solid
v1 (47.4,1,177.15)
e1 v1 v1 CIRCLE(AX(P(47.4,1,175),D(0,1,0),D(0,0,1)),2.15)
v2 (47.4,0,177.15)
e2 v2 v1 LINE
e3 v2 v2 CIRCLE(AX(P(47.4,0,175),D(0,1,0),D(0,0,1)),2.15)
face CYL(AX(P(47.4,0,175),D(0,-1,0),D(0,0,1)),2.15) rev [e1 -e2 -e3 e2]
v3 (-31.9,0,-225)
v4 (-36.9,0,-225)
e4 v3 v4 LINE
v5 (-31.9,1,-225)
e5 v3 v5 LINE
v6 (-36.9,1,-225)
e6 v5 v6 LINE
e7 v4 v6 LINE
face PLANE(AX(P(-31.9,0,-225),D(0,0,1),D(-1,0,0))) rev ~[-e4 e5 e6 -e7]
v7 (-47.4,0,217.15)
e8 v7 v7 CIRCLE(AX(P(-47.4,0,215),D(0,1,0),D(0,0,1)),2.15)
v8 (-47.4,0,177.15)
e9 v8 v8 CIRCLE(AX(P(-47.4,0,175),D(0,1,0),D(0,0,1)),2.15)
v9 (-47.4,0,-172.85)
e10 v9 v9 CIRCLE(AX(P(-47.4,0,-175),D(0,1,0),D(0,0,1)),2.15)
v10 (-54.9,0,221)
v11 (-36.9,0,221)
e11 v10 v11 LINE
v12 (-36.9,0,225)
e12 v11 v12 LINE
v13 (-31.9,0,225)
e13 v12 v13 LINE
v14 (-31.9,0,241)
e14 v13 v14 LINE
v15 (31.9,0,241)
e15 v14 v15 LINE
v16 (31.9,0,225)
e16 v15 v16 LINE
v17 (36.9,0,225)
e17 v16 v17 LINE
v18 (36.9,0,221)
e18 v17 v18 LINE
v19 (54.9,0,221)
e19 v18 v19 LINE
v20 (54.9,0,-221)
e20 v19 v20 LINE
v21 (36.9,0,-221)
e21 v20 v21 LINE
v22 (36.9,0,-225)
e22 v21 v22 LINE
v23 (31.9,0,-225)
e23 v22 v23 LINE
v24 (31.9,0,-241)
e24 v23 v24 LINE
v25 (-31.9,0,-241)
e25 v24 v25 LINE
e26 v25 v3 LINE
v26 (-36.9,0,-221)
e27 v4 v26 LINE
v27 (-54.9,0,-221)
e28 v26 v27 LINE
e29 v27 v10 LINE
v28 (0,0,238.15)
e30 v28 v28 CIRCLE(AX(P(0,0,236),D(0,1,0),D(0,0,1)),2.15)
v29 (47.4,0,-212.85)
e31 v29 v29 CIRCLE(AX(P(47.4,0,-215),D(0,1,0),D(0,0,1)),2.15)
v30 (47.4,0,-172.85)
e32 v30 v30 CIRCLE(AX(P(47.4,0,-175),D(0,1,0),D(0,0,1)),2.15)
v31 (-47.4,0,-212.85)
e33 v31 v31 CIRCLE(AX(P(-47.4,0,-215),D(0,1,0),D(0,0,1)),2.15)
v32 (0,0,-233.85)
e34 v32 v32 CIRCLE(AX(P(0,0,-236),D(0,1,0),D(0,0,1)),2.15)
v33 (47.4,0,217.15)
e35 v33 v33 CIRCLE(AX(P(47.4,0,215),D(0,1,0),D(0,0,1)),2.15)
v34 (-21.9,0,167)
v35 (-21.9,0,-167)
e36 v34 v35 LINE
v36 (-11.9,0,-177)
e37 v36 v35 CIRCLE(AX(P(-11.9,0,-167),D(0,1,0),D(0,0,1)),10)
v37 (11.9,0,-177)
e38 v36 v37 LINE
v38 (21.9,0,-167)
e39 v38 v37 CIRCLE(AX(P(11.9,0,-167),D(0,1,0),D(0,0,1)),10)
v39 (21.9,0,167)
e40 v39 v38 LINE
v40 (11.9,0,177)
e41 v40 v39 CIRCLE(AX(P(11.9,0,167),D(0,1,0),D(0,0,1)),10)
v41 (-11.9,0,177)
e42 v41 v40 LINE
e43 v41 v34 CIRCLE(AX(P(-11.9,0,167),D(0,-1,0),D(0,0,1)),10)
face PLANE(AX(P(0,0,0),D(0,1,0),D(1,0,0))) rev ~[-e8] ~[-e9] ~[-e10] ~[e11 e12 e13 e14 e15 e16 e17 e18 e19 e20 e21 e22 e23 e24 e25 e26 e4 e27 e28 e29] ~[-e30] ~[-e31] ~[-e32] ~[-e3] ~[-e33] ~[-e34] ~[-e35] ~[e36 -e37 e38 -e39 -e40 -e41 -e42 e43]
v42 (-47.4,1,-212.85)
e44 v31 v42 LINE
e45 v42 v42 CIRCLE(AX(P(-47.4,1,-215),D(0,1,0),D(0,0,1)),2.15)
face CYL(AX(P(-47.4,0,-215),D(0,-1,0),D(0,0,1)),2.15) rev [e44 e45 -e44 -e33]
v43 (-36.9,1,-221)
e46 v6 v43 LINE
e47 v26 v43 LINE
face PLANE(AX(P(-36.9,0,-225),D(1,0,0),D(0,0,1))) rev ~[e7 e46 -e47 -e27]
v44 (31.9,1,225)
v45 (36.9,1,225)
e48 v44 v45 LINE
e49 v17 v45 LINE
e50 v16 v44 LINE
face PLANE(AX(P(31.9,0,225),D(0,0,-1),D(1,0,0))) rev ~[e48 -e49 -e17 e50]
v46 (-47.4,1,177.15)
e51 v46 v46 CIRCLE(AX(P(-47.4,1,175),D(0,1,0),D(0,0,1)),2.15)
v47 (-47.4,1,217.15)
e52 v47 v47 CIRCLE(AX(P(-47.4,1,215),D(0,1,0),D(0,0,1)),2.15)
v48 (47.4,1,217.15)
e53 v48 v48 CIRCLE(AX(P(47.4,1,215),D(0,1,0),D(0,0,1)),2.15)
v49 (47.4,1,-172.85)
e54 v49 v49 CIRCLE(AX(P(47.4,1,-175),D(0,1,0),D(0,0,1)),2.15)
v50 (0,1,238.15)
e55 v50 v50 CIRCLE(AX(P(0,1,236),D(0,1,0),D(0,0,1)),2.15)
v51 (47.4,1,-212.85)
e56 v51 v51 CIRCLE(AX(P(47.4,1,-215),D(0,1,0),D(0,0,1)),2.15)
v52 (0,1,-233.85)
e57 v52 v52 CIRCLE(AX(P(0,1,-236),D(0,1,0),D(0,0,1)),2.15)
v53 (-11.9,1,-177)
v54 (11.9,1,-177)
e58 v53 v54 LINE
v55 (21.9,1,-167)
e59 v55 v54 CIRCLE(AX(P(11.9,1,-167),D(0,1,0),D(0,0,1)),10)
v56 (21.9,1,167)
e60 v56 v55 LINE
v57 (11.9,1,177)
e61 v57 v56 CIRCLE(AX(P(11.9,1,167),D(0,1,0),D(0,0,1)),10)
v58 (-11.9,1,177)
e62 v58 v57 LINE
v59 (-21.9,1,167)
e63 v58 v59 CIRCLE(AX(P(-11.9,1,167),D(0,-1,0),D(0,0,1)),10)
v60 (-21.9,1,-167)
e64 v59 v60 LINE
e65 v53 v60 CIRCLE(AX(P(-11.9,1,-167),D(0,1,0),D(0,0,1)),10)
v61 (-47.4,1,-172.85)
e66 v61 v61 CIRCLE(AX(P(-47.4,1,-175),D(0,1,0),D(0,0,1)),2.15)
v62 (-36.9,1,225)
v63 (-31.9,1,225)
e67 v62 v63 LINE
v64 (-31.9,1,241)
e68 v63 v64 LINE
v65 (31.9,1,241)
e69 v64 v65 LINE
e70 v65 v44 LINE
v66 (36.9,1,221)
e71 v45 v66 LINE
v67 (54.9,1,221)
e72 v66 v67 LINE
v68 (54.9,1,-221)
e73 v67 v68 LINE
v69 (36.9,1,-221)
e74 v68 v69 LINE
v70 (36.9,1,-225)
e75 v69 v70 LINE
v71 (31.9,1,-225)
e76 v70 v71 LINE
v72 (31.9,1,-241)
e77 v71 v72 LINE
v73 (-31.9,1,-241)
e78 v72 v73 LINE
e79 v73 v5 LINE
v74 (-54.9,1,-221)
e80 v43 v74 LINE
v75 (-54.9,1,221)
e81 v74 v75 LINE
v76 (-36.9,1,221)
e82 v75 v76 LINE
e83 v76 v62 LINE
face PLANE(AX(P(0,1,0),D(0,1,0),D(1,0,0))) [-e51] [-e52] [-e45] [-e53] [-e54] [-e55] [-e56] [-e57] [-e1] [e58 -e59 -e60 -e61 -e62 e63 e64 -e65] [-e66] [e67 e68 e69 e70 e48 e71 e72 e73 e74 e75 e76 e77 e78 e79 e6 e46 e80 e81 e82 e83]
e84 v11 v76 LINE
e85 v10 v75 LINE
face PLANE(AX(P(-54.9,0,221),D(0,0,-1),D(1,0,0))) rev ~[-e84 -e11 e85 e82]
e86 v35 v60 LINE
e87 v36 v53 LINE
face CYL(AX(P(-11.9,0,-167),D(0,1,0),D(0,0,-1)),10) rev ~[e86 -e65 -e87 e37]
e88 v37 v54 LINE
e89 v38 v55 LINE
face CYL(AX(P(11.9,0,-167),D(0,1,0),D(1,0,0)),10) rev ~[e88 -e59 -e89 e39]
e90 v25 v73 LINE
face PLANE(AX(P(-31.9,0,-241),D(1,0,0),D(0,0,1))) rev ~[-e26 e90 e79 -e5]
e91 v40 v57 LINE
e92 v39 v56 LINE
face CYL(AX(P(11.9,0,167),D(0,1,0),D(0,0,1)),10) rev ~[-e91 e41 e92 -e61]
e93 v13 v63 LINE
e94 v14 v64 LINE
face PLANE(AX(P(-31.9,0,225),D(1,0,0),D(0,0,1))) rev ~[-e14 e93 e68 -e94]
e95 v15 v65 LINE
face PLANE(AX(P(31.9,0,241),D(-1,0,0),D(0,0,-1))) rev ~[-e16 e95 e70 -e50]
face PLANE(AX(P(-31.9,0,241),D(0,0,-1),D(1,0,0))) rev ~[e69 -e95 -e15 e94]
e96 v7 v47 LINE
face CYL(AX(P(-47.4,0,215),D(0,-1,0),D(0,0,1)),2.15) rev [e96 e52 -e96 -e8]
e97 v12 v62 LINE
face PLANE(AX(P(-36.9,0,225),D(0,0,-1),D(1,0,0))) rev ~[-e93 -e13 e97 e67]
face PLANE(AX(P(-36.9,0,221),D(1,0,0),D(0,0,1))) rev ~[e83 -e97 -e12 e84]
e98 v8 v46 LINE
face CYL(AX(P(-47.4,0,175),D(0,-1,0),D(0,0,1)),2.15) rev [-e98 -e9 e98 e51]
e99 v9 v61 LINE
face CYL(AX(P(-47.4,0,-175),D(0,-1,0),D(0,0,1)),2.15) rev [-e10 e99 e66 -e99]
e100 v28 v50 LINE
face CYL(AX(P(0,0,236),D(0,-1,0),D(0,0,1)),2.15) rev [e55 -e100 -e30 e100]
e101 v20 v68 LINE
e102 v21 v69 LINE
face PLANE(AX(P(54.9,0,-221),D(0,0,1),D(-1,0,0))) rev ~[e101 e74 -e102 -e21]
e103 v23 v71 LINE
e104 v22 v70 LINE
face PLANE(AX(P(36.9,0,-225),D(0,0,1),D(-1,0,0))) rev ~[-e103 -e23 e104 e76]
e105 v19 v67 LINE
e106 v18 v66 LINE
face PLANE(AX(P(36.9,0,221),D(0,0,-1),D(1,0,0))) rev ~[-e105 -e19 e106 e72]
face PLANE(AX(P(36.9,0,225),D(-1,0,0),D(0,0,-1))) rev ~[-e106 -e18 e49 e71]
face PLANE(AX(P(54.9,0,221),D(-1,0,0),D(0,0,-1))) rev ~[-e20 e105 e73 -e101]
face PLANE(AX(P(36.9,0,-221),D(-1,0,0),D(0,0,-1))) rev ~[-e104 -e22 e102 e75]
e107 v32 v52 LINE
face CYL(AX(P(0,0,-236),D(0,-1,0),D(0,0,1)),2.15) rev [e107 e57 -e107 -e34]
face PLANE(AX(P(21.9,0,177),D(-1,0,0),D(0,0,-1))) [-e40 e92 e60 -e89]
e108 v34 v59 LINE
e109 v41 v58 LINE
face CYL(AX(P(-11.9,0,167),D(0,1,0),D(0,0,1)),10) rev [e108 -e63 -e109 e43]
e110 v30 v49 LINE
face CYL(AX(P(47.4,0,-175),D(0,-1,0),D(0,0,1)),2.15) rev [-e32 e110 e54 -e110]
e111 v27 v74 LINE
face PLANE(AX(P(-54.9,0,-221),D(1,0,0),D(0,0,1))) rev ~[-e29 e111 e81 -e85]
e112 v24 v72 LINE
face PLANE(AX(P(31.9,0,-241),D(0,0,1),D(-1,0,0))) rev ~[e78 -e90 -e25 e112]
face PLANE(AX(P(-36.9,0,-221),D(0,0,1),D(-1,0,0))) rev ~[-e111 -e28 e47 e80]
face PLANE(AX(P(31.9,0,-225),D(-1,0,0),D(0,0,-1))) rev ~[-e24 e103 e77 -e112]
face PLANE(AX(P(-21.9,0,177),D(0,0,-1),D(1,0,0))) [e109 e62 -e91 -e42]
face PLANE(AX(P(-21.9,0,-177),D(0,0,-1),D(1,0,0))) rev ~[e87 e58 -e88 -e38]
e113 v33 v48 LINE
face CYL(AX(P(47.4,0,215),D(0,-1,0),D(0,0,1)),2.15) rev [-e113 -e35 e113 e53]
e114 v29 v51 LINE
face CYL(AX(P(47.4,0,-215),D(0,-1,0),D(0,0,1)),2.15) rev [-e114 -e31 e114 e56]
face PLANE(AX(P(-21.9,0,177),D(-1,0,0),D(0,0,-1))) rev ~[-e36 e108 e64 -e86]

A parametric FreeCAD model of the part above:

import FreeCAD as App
import Part
import Sketcher


def edges_at(feature, points):
    """Names of the edges that pass closest to the given points."""
    edges = feature.Shape.Edges
    near = lambda p: min(range(len(edges)), key=lambda i: edges[i].distToShape(Part.Vertex(*p))[0])
    return sorted({f"Edge{near(p) + 1}" for p in points})


def add_polygon(sketch, points):
    """Adds a closed chain of lines whose ends are joined by coincident constraints."""
    first, n = sketch.GeometryCount, len(points)
    for a, b in zip(points, points[1:] + points[:1]):
        sketch.addGeometry(Part.LineSegment(App.Vector(*a, 0), App.Vector(*b, 0)), False)
    for i in range(n):
        sketch.addConstraint(Sketcher.Constraint("Coincident", first + i, 2, first + (i + 1) % n, 1))

doc = App.newDocument("Part")
body = doc.addObject("PartDesign::Body", "Body")

sketch1 = body.newObject("Sketcher::SketchObject", "Sketch")
sketch1.AttachmentSupport = (doc.getObject("XZ_Plane"), [""])
sketch1.MapMode = "FlatFace"
add_polygon(sketch1, [(-54.9, 221), (-36.9, 221), (-36.9, 225), (-31.9, 225), (-31.9, 241), (31.9, 241), (31.9, 225), (36.9, 225), (36.9, 221), (54.9, 221), (54.9, -221), (36.9, -221), (36.9, -225), (31.9, -225), (31.9, -241), (-31.9, -241), (-31.9, -225), (-36.9, -225), (-36.9, -221), (-54.9, -221)])
sketch1.addGeometry(Part.Circle(App.Vector(-47.4, 215, 0), App.Vector(0, 0, 1), 2.1), False)
sketch1.addGeometry(Part.Circle(App.Vector(-47.4, 175, 0), App.Vector(0, 0, 1), 2.1), False)
sketch1.addGeometry(Part.Circle(App.Vector(0, 236, 0), App.Vector(0, 0, 1), 2.1), False)
sketch1.addGeometry(Part.Circle(App.Vector(47.4, 215, 0), App.Vector(0, 0, 1), 2.1), False)
sketch1.addGeometry(Part.Circle(App.Vector(47.4, 175, 0), App.Vector(0, 0, 1), 2.1), False)
sketch1.addGeometry(Part.Circle(App.Vector(-47.4, -175, 0), App.Vector(0, 0, 1), 2.1), False)
sketch1.addGeometry(Part.Circle(App.Vector(-47.4, -215, 0), App.Vector(0, 0, 1), 2.1), False)
add_polygon(sketch1, [(21.9, 177), (-21.9, 177), (-21.9, -177), (21.9, -177)])
sketch1.addGeometry(Part.Circle(App.Vector(0, -236, 0), App.Vector(0, 0, 1), 2.1), False)
sketch1.addGeometry(Part.Circle(App.Vector(47.4, -175, 0), App.Vector(0, 0, 1), 2.1), False)
sketch1.addGeometry(Part.Circle(App.Vector(47.4, -215, 0), App.Vector(0, 0, 1), 2.1), False)
sketch1.addConstraint(Sketcher.Constraint("Horizontal", 0))
sketch1.addConstraint(Sketcher.Constraint("Vertical", 1))
sketch1.addConstraint(Sketcher.Constraint("Horizontal", 2))
sketch1.addConstraint(Sketcher.Constraint("Vertical", 3))
sketch1.addConstraint(Sketcher.Constraint("Horizontal", 4))
sketch1.addConstraint(Sketcher.Constraint("Vertical", 5))
sketch1.addConstraint(Sketcher.Constraint("Horizontal", 6))
sketch1.addConstraint(Sketcher.Constraint("Vertical", 7))
sketch1.addConstraint(Sketcher.Constraint("Horizontal", 8))
sketch1.addConstraint(Sketcher.Constraint("Vertical", 9))
sketch1.addConstraint(Sketcher.Constraint("Horizontal", 10))
sketch1.addConstraint(Sketcher.Constraint("Vertical", 11))
sketch1.addConstraint(Sketcher.Constraint("Horizontal", 12))
sketch1.addConstraint(Sketcher.Constraint("Vertical", 13))
sketch1.addConstraint(Sketcher.Constraint("Horizontal", 14))
sketch1.addConstraint(Sketcher.Constraint("Vertical", 15))
sketch1.addConstraint(Sketcher.Constraint("Horizontal", 16))
sketch1.addConstraint(Sketcher.Constraint("Vertical", 17))
sketch1.addConstraint(Sketcher.Constraint("Horizontal", 18))
sketch1.addConstraint(Sketcher.Constraint("Vertical", 19))
sketch1.addConstraint(Sketcher.Constraint("Horizontal", 27))
sketch1.addConstraint(Sketcher.Constraint("Vertical", 28))
sketch1.addConstraint(Sketcher.Constraint("Horizontal", 29))
sketch1.addConstraint(Sketcher.Constraint("Vertical", 30))
sketch1.addConstraint(Sketcher.Constraint("Equal", 20, 21))
sketch1.addConstraint(Sketcher.Constraint("Equal", 21, 22))
sketch1.addConstraint(Sketcher.Constraint("Equal", 22, 23))
sketch1.addConstraint(Sketcher.Constraint("Equal", 23, 24))
sketch1.addConstraint(Sketcher.Constraint("Equal", 24, 25))
sketch1.addConstraint(Sketcher.Constraint("Equal", 25, 26))
sketch1.addConstraint(Sketcher.Constraint("Equal", 26, 31))
sketch1.addConstraint(Sketcher.Constraint("Equal", 31, 32))
sketch1.addConstraint(Sketcher.Constraint("Equal", 32, 33))
sketch1.addConstraint(Sketcher.Constraint("Symmetric", 24, 3, 25, 3, -1, 1))
sketch1.addConstraint(Sketcher.Constraint("Symmetric", 23, 3, 26, 3, -1, 1))
sketch1.addConstraint(Sketcher.Constraint("Symmetric", 22, 3, 31, 3, -1, 1))
sketch1.addConstraint(Sketcher.Constraint("Symmetric", 21, 3, 32, 3, -1, 1))
sketch1.addConstraint(Sketcher.Constraint("Symmetric", 20, 3, 33, 3, -1, 1))
sketch1.addConstraint(Sketcher.Constraint("Symmetric", 0, 2, 10, 2, -1, 1))
sketch1.addConstraint(Sketcher.Constraint("Symmetric", 2, 2, 12, 2, -1, 1))
sketch1.addConstraint(Sketcher.Constraint("Symmetric", 4, 2, 14, 2, -1, 1))
sketch1.addConstraint(Sketcher.Constraint("Symmetric", 6, 2, 16, 2, -1, 1))
sketch1.addConstraint(Sketcher.Constraint("Symmetric", 8, 2, 18, 2, -1, 1))
sketch1.addConstraint(Sketcher.Constraint("Symmetric", 27, 2, 29, 2, -1, 1))
sketch1.addConstraint(Sketcher.Constraint("Symmetric", 20, 3, 23, 3, -2))
sketch1.addConstraint(Sketcher.Constraint("Symmetric", 21, 3, 24, 3, -2))
sketch1.addConstraint(Sketcher.Constraint("Symmetric", 2, 2, 5, 2, -2))
sketch1.addConstraint(Sketcher.Constraint("Symmetric", 0, 2, 7, 2, -2))
sketch1.addConstraint(Sketcher.Constraint("PointOnObject", 22, 3, -2))
sketch1.addConstraint(Sketcher.Constraint("Vertical", 20, 3, 21, 3))
sketch1.addConstraint(Sketcher.Constraint("Diameter", 20, 4.3))
sketch1.addConstraint(Sketcher.Constraint("DistanceX", 0, 1, 0, 2, 18.0))
sketch1.addConstraint(Sketcher.Constraint("DistanceX", 2, 1, 2, 2, 5.0))
sketch1.addConstraint(Sketcher.Constraint("DistanceY", 1, 1, 1, 2, 4.0))
sketch1.addConstraint(Sketcher.Constraint("DistanceY", 3, 1, 3, 2, 16.0))
sketch1.addConstraint(Sketcher.Constraint("DistanceY", 9, 2, 9, 1, 442.0))
sketch1.addConstraint(Sketcher.Constraint("DistanceY", 28, 2, 28, 1, 354.0))
sketch1.addConstraint(Sketcher.Constraint("DistanceX", 4, 1, 4, 2, 63.8))
sketch1.addConstraint(Sketcher.Constraint("DistanceX", 27, 2, 27, 1, 43.8))
sketch1.addConstraint(Sketcher.Constraint("DistanceY", -1, 1, 20, 3, 215.0))
sketch1.addConstraint(Sketcher.Constraint("DistanceY", -1, 1, 21, 3, 175.0))
sketch1.addConstraint(Sketcher.Constraint("DistanceY", -1, 1, 22, 3, 236.0))
sketch1.addConstraint(Sketcher.Constraint("DistanceX", 20, 3, -1, 1, 47.4))
pad1 = body.newObject("PartDesign::Pad", "Pad")
pad1.Profile = sketch1
pad1.Length = 1
pad1.Reversed = True
doc.recompute()

fillet = body.newObject("PartDesign::Fillet", "Fillet")
fillet.Base = (pad1, edges_at(pad1, [
    (21.9, 0.5, 177),
    (21.9, 0.5, -177),
    (-21.9, 0.5, -177),
    (-21.9, 0.5, 177),
]))
fillet.Radius = 10

doc.recompute()
